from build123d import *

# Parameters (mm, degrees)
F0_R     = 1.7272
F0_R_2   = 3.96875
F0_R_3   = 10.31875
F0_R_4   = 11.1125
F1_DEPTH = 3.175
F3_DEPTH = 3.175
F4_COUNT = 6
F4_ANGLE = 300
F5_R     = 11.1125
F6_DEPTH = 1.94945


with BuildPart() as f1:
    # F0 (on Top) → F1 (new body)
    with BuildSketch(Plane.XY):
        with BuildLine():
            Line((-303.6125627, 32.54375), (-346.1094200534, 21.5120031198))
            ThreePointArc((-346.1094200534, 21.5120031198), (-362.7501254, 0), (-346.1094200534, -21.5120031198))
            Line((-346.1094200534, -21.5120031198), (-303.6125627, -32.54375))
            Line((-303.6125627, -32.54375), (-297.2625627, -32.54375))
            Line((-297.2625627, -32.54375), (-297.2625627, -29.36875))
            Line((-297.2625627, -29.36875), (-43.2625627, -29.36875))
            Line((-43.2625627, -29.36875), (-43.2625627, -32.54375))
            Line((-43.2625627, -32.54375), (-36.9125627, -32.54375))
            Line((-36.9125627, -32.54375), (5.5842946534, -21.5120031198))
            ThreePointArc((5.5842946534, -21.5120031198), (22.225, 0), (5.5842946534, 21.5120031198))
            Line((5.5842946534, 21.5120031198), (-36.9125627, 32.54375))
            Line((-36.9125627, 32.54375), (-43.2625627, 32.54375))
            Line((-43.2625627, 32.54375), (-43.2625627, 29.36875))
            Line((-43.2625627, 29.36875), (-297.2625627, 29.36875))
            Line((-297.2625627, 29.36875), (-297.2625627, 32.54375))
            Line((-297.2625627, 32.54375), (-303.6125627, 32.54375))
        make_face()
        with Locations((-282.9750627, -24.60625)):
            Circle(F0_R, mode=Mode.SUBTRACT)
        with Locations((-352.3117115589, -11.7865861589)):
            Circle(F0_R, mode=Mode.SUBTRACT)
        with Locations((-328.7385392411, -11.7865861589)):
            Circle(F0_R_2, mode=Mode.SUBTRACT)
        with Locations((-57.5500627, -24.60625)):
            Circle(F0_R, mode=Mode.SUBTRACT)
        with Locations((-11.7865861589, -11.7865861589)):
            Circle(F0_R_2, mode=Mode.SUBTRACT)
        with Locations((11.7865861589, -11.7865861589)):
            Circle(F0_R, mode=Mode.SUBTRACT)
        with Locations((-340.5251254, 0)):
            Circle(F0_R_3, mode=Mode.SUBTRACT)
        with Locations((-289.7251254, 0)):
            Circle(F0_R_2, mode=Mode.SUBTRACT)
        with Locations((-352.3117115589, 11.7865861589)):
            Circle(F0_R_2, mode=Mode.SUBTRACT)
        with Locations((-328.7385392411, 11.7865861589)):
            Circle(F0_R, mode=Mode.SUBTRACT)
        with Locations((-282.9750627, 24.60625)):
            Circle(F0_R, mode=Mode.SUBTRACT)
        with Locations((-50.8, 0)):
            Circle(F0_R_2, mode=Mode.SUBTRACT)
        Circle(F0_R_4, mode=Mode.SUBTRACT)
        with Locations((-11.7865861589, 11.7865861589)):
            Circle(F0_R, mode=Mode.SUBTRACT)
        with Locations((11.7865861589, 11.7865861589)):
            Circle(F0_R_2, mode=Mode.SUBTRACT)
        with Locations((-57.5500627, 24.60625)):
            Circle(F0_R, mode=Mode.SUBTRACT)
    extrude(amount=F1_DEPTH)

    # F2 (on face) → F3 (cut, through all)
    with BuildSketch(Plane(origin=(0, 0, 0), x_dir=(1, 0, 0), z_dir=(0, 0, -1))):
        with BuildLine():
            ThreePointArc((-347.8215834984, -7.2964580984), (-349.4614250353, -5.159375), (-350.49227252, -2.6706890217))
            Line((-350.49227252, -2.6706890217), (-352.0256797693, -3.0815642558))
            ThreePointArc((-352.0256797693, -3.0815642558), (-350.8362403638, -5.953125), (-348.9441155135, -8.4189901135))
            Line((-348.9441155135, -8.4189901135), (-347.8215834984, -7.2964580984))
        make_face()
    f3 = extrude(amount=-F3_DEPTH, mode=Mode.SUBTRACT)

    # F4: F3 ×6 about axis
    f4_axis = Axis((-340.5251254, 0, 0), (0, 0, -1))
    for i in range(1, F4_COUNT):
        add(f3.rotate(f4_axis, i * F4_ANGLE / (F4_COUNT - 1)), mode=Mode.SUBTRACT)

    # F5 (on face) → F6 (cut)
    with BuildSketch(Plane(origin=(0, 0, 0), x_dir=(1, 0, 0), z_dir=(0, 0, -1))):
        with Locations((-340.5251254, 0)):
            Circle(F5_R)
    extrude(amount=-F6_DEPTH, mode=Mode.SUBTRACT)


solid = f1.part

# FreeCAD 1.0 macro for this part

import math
import FreeCAD as App
import Part
import Sketcher

V = App.Vector
Q = App.Units.Quantity

doc = App.newDocument("Part")
body = doc.addObject("PartDesign::Body", "Body")

sketch1 = body.newObject("Sketcher::SketchObject", "Sketch")
sketch1.AttachmentSupport = (doc.getObject("XY_Plane"), [""])
sketch1.MapMode = "FlatFace"
sketch1.addGeometry(Part.LineSegment(V(-303.612563, 32.54375, 0), V(-346.10942, 21.512003, 0)), False)
sketch1.addGeometry(Part.ArcOfCircle(Part.Circle(V(-340.525125, 0, 0), V(0, 0, 1), 22.225), math.radians(104.552195), math.radians(255.447805)), False)
sketch1.addGeometry(Part.LineSegment(V(-346.10942, -21.512003, 0), V(-303.612563, -32.54375, 0)), False)
sketch1.addGeometry(Part.LineSegment(V(-303.612563, -32.54375, 0), V(-297.262563, -32.54375, 0)), False)
sketch1.addGeometry(Part.LineSegment(V(-297.262563, -32.54375, 0), V(-297.262563, -29.36875, 0)), False)
sketch1.addGeometry(Part.LineSegment(V(-297.262563, -29.36875, 0), V(-43.262563, -29.36875, 0)), False)
sketch1.addGeometry(Part.LineSegment(V(-43.262563, -29.36875, 0), V(-43.262563, -32.54375, 0)), False)
sketch1.addGeometry(Part.LineSegment(V(-43.262563, -32.54375, 0), V(-36.912563, -32.54375, 0)), False)
sketch1.addGeometry(Part.LineSegment(V(-36.912563, -32.54375, 0), V(5.584295, -21.512003, 0)), False)
sketch1.addGeometry(Part.ArcOfCircle(Part.Circle(V(0, 0, 0), V(0, 0, 1), 22.225), math.radians(-75.447805), math.radians(75.447805)), False)
sketch1.addGeometry(Part.LineSegment(V(5.584295, 21.512003, 0), V(-36.912563, 32.54375, 0)), False)
sketch1.addGeometry(Part.LineSegment(V(-36.912563, 32.54375, 0), V(-43.262563, 32.54375, 0)), False)
sketch1.addGeometry(Part.LineSegment(V(-43.262563, 32.54375, 0), V(-43.262563, 29.36875, 0)), False)
sketch1.addGeometry(Part.LineSegment(V(-43.262563, 29.36875, 0), V(-297.262563, 29.36875, 0)), False)
sketch1.addGeometry(Part.LineSegment(V(-297.262563, 29.36875, 0), V(-297.262563, 32.54375, 0)), False)
sketch1.addGeometry(Part.LineSegment(V(-297.262563, 32.54375, 0), V(-303.612563, 32.54375, 0)), False)
sketch1.addGeometry(Part.Circle(V(-282.975063, -24.60625, 0), V(0, 0, 1), 1.7272), False)
sketch1.addGeometry(Part.Circle(V(-352.311712, -11.786586, 0), V(0, 0, 1), 1.7272), False)
sketch1.addGeometry(Part.Circle(V(-328.738539, -11.786586, 0), V(0, 0, 1), 3.96875), False)
sketch1.addGeometry(Part.Circle(V(-57.550063, -24.60625, 0), V(0, 0, 1), 1.7272), False)
sketch1.addGeometry(Part.Circle(V(-11.786586, -11.786586, 0), V(0, 0, 1), 3.96875), False)
sketch1.addGeometry(Part.Circle(V(11.786586, -11.786586, 0), V(0, 0, 1), 1.7272), False)
sketch1.addGeometry(Part.Circle(V(-340.525125, 0, 0), V(0, 0, 1), 10.31875), False)
sketch1.addGeometry(Part.Circle(V(-289.725125, 0, 0), V(0, 0, 1), 3.96875), False)
sketch1.addGeometry(Part.Circle(V(-352.311712, 11.786586, 0), V(0, 0, 1), 3.96875), False)
sketch1.addGeometry(Part.Circle(V(-328.738539, 11.786586, 0), V(0, 0, 1), 1.7272), False)
sketch1.addGeometry(Part.Circle(V(-282.975063, 24.60625, 0), V(0, 0, 1), 1.7272), False)
sketch1.addGeometry(Part.Circle(V(-50.8, 0, 0), V(0, 0, 1), 3.96875), False)
sketch1.addGeometry(Part.Circle(V(0, 0, 0), V(0, 0, 1), 11.1125), False)
sketch1.addGeometry(Part.Circle(V(-11.786586, 11.786586, 0), V(0, 0, 1), 1.7272), False)
sketch1.addGeometry(Part.Circle(V(11.786586, 11.786586, 0), V(0, 0, 1), 3.96875), False)
sketch1.addGeometry(Part.Circle(V(-57.550063, 24.60625, 0), V(0, 0, 1), 1.7272), False)
sketch1.addConstraint(Sketcher.Constraint("Tangent", 0, 2, 1, 1))
sketch1.addConstraint(Sketcher.Constraint("Tangent", 1, 2, 2, 1))
sketch1.addConstraint(Sketcher.Constraint("Coincident", 2, 2, 3, 1))
sketch1.addConstraint(Sketcher.Constraint("Coincident", 3, 2, 4, 1))
sketch1.addConstraint(Sketcher.Constraint("Coincident", 4, 2, 5, 1))
sketch1.addConstraint(Sketcher.Constraint("Coincident", 5, 2, 6, 1))
sketch1.addConstraint(Sketcher.Constraint("Coincident", 6, 2, 7, 1))
sketch1.addConstraint(Sketcher.Constraint("Coincident", 7, 2, 8, 1))
sketch1.addConstraint(Sketcher.Constraint("Tangent", 8, 2, 9, 1))
sketch1.addConstraint(Sketcher.Constraint("Tangent", 9, 2, 10, 1))
sketch1.addConstraint(Sketcher.Constraint("Coincident", 10, 2, 11, 1))
sketch1.addConstraint(Sketcher.Constraint("Coincident", 11, 2, 12, 1))
sketch1.addConstraint(Sketcher.Constraint("Coincident", 12, 2, 13, 1))
sketch1.addConstraint(Sketcher.Constraint("Coincident", 13, 2, 14, 1))
sketch1.addConstraint(Sketcher.Constraint("Coincident", 14, 2, 15, 1))
sketch1.addConstraint(Sketcher.Constraint("Coincident", 15, 2, 0, 1))
sketch1.addConstraint(Sketcher.Constraint("Horizontal", 3))
sketch1.addConstraint(Sketcher.Constraint("Vertical", 4))
sketch1.addConstraint(Sketcher.Constraint("Horizontal", 5))
sketch1.addConstraint(Sketcher.Constraint("Vertical", 6))
sketch1.addConstraint(Sketcher.Constraint("Horizontal", 7))
sketch1.addConstraint(Sketcher.Constraint("Horizontal", 11))
sketch1.addConstraint(Sketcher.Constraint("Vertical", 12))
sketch1.addConstraint(Sketcher.Constraint("Horizontal", 13))
sketch1.addConstraint(Sketcher.Constraint("Vertical", 14))
sketch1.addConstraint(Sketcher.Constraint("Horizontal", 15))
sketch1.addConstraint(Sketcher.Constraint("Coincident", 9, 3, -1, 1))
sketch1.addConstraint(Sketcher.Constraint("Coincident", 28, 3, -1, 1))
sketch1.addConstraint(Sketcher.Constraint("Coincident", 22, 3, 1, 3))
sketch1.addConstraint(Sketcher.Constraint("Equal", 1, 9))
sketch1.addConstraint(Sketcher.Constraint("Equal", 16, 17))
sketch1.addConstraint(Sketcher.Constraint("Equal", 17, 19))
sketch1.addConstraint(Sketcher.Constraint("Equal", 18, 20))
sketch1.addConstraint(Sketcher.Constraint("Equal", 19, 21))
sketch1.addConstraint(Sketcher.Constraint("Equal", 20, 23))
sketch1.addConstraint(Sketcher.Constraint("Equal", 23, 24))
sketch1.addConstraint(Sketcher.Constraint("Equal", 21, 25))
sketch1.addConstraint(Sketcher.Constraint("Equal", 25, 26))
sketch1.addConstraint(Sketcher.Constraint("Equal", 24, 27))
sketch1.addConstraint(Sketcher.Constraint("Equal", 26, 29))
sketch1.addConstraint(Sketcher.Constraint("Equal", 27, 30))
sketch1.addConstraint(Sketcher.Constraint("Equal", 29, 31))
sketch1.addConstraint(Sketcher.Constraint("Symmetric", 21, 3, 29, 3, -1, 1))
sketch1.addConstraint(Sketcher.Constraint("Symmetric", 20, 3, 30, 3, -1, 1))
sketch1.addConstraint(Sketcher.Constraint("Symmetric", 20, 3, 21, 3, -2))
sketch1.addConstraint(Sketcher.Constraint("Symmetric", 17, 3, 24, 3, -1))
sketch1.addConstraint(Sketcher.Constraint("Symmetric", 18, 3, 25, 3, -1))
sketch1.addConstraint(Sketcher.Constraint("Symmetric", 16, 3, 26, 3, -1))
sketch1.addConstraint(Sketcher.Constraint("Symmetric", 19, 3, 31, 3, -1))
sketch1.addConstraint(Sketcher.Constraint("Symmetric", 0, 2, 1, 2, -1))
sketch1.addConstraint(Sketcher.Constraint("Symmetric", 7, 2, 10, 2, -1))
sketch1.addConstraint(Sketcher.Constraint("Symmetric", 5, 2, 12, 2, -1))
sketch1.addConstraint(Sketcher.Constraint("Symmetric", 3, 2, 14, 2, -1))
sketch1.addConstraint(Sketcher.Constraint("PointOnObject", 23, 3, -1))
sketch1.addConstraint(Sketcher.Constraint("PointOnObject", 27, 3, -1))
sketch1.addConstraint(Sketcher.Constraint("Parallel", 0, 8))
sketch1.addConstraint(Sketcher.Constraint("Horizontal", 17, 3, 18, 3))
sketch1.addConstraint(Sketcher.Constraint("Horizontal", 16, 3, 19, 3))
sketch1.addConstraint(Sketcher.Constraint("Horizontal", 18, 3, 20, 3))
sketch1.addConstraint(Sketcher.Constraint("Horizontal", 3, 2, 6, 2))
sketch1.addConstraint(Sketcher.Constraint("Equal", 3, 7))
sketch1.addConstraint(Sketcher.Constraint("DistanceX", 5, 1, 5, 2, Q("10 in")))
sketch1.addConstraint(Sketcher.Constraint("Diameter", 16, Q("0.136 in")))
sketch1.addConstraint(Sketcher.Constraint("Diameter", 18, Q("0.3125 in")))
sketch1.addConstraint(Sketcher.Constraint("Diameter", 22, Q("0.8125 in")))
sketch1.addConstraint(Sketcher.Constraint("Diameter", 28, Q("0.875 in")))
sketch1.addConstraint(Sketcher.Constraint("DistanceX", 27, 3, -1, 1, Q("2 in")))
sketch1.addConstraint(Sketcher.Constraint("Radius", 1, Q("0.875 in")))
sketch1.addConstraint(Sketcher.Constraint("DistanceX", 1, 3, 23, 3, Q("2 in")))
sketch1.addConstraint(Sketcher.Constraint("DistanceX", 3, 1, 3, 2, Q("0.25 in")))
sketch1.addConstraint(Sketcher.Constraint("DistanceY", 4, 1, 4, 2, Q("0.125 in")))
sketch1.addConstraint(Sketcher.Constraint("DistanceY", 16, 3, -1, 1, Q("0.96875 in")))
sketch1.addConstraint(Sketcher.Constraint("DistanceY", 2, 2, -1, 1, Q("1.28125 in")))
sketch1.addConstraint(Sketcher.Constraint("DistanceX", 16, 3, 19, 3, Q("8.875 in")))
sketch1.addConstraint(Sketcher.Constraint("DistanceX", 2, 2, 16, 3, Q("0.8125 in")))
sketch1.addConstraint(Sketcher.Constraint("Distance", 0, 43.905379))
sketch1.addConstraint(Sketcher.Constraint("DistanceX", 17, 3, -1, 1, 352.311712))
sketch1.addConstraint(Sketcher.Constraint("DistanceX", 18, 3, -1, 1, 328.738539))
sketch1.addConstraint(Sketcher.Constraint("DistanceX", 1, 3, 20, 3, 328.738539))
sketch1.addConstraint(Sketcher.Constraint("DistanceY", 17, 3, 0, 2, 33.298589))
pad1 = body.newObject("PartDesign::Pad", "Pad")
pad1.Profile = sketch1
pad1.Length = Q("0.125 in")

sketch2 = body.newObject("Sketcher::SketchObject", "Sketch001")
sketch2.AttachmentSupport = (doc.getObject("XY_Plane"), [""])
sketch2.MapMode = "FlatFace"
sketch2.addGeometry(Part.ArcOfCircle(Part.Circle(V(-340.525125, 0, 0), V(0, 0, 1), 10.31875), math.radians(135), math.radians(165)), False)
sketch2.addGeometry(Part.LineSegment(V(-350.492273, 2.670689, 0), V(-352.02568, 3.081564, 0)), False)
sketch2.addGeometry(Part.ArcOfCircle(Part.Circle(V(-340.525125, 0, 0), V(0, 0, 1), 11.90625), math.radians(135), math.radians(165)), False)
sketch2.addGeometry(Part.LineSegment(V(-348.944116, 8.41899, 0), V(-347.821583, 7.296458, 0)), False)
sketch2.addConstraint(Sketcher.Constraint("Coincident", 0, 2, 1, 1))
sketch2.addConstraint(Sketcher.Constraint("Coincident", 1, 2, 2, 2))
sketch2.addConstraint(Sketcher.Constraint("Coincident", 2, 1, 3, 1))
sketch2.addConstraint(Sketcher.Constraint("Coincident", 3, 2, 0, 1))
sketch2.addConstraint(Sketcher.Constraint("Coincident", 2, 3, 0, 3))
sketch2.addConstraint(Sketcher.Constraint("PointOnObject", 0, 3, -1))
sketch2.addConstraint(Sketcher.Constraint("Angle", 1, Q("165 deg")))
sketch2.addConstraint(Sketcher.Constraint("Angle", 3, Q("-45 deg")))
sketch2.addConstraint(Sketcher.Constraint("Radius", 0, Q("0.40625 in")))
sketch2.addConstraint(Sketcher.Constraint("Radius", 2, Q("0.46875 in")))
sketch2.addConstraint(Sketcher.Constraint("DistanceY", 0, 2, 2, 1, 5.748301))
sketch2.addConstraint(Sketcher.Constraint("DistanceY", -1, 1, 0, 2, 2.670689))
sketch2.addConstraint(Sketcher.Constraint("DistanceX", 1, 2, -1, 1, 352.02568))
pocket1 = body.newObject("PartDesign::Pocket", "Pocket")
pocket1.Profile = sketch2
pocket1.Type = "ThroughAll"
pocket1.Reversed = True
doc.recompute()

datumline = body.newObject("PartDesign::Line", "DatumLine")
datumline.Placement = App.Placement(V(-340.525125, 0, 0), App.Rotation(V(0, 0, 1), V(0, 0, -1)))
polarpattern = body.newObject("PartDesign::PolarPattern", "PolarPattern")
polarpattern.Originals = [pocket1]
polarpattern.Axis = (datumline, [""])
polarpattern.Angle = 360
polarpattern.Occurrences = 6
body.Tip = polarpattern

sketch3 = body.newObject("Sketcher::SketchObject", "Sketch002")
sketch3.AttachmentSupport = (doc.getObject("XY_Plane"), [""])
sketch3.MapMode = "FlatFace"
sketch3.addGeometry(Part.Circle(V(-340.525125, 0, 0), V(0, 0, 1), 11.1125), False)
sketch3.addConstraint(Sketcher.Constraint("PointOnObject", 0, 3, -1))
sketch3.addConstraint(Sketcher.Constraint("Diameter", 0, Q("0.875 in")))
sketch3.addConstraint(Sketcher.Constraint("DistanceX", 0, 3, -1, 1, 340.525125))
pocket2 = body.newObject("PartDesign::Pocket", "Pocket001")
pocket2.Profile = sketch3
pocket2.Length = 1.94945
pocket2.Reversed = True

doc.recompute()
